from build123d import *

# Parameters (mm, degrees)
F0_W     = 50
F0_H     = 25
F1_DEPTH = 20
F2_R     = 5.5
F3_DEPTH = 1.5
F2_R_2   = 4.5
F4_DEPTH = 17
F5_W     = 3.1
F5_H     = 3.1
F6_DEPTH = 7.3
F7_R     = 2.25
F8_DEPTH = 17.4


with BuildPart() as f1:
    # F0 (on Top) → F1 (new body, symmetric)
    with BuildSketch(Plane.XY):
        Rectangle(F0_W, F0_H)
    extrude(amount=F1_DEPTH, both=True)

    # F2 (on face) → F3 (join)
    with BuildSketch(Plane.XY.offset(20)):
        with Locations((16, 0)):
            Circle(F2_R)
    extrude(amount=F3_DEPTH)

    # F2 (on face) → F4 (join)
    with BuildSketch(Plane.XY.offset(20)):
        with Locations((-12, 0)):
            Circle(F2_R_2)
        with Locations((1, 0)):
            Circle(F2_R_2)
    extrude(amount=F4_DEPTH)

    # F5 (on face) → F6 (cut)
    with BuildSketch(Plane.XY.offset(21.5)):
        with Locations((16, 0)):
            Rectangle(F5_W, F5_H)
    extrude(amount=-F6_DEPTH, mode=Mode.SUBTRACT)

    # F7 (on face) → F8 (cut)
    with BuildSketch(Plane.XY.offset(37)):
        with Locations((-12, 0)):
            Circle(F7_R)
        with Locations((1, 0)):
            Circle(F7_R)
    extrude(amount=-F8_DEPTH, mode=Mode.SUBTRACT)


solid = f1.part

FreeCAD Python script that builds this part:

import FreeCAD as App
import Part
import Sketcher
Q = App.Units.Quantity


def add_polygon(sketch, points):
    """Adds a closed chain of lines whose ends are joined by coincident constraints."""
    first, n = sketch.GeometryCount, len(points)
    for a, b in zip(points, points[1:] + points[:1]):
        sketch.addGeometry(Part.LineSegment(App.Vector(*a, 0), App.Vector(*b, 0)), False)
    for i in range(n):
        sketch.addConstraint(Sketcher.Constraint("Coincident", first + i, 2, first + (i + 1) % n, 1))

doc = App.newDocument("Part")
body = doc.addObject("PartDesign::Body", "Body")

sketch1 = body.newObject("Sketcher::SketchObject", "Sketch")
sketch1.AttachmentSupport = (doc.getObject("XY_Plane"), [""])
sketch1.MapMode = "FlatFace"
add_polygon(sketch1, [(-25, 12), (-25, -12), (25, -12), (25, 12)])
sketch1.addConstraint(Sketcher.Constraint("Vertical", 0))
sketch1.addConstraint(Sketcher.Constraint("Horizontal", 1))
sketch1.addConstraint(Sketcher.Constraint("Vertical", 2))
sketch1.addConstraint(Sketcher.Constraint("Horizontal", 3))
sketch1.addConstraint(Sketcher.Constraint("Symmetric", 0, 2, 2, 2, -1, 1))
sketch1.addConstraint(Sketcher.Constraint("DistanceX", 1, 1, 1, 2, Q("50 mm")))
sketch1.addConstraint(Sketcher.Constraint("DistanceY", 0, 2, 0, 1, Q("25 mm")))
pad1 = body.newObject("PartDesign::Pad", "Pad")
pad1.Profile = sketch1
pad1.Length = 40
pad1.Midplane = True

sketch2 = body.newObject("Sketcher::SketchObject", "Sketch001")
sketch2.AttachmentSupport = (doc.getObject("XY_Plane"), [""])
sketch2.MapMode = "FlatFace"
sketch2.AttachmentOffset = App.Placement(App.Vector(0, 0, 20), App.Rotation())
sketch2.addGeometry(Part.Circle(App.Vector(16, 0, 0), App.Vector(0, 0, 1), 6), False)
sketch2.addConstraint(Sketcher.Constraint("PointOnObject", 0, 3, -1))
sketch2.addConstraint(Sketcher.Constraint("Diameter", 0, Q("11 mm")))
sketch2.addConstraint(Sketcher.Constraint("DistanceX", -1, 1, 0, 3, Q("16 mm")))
pad2 = body.newObject("PartDesign::Pad", "Pad001")
pad2.Profile = sketch2
pad2.Length = 1.5

sketch3 = body.newObject("Sketcher::SketchObject", "Sketch002")
sketch3.AttachmentSupport = (doc.getObject("XY_Plane"), [""])
sketch3.MapMode = "FlatFace"
sketch3.AttachmentOffset = App.Placement(App.Vector(0, 0, 20), App.Rotation())
sketch3.addGeometry(Part.Circle(App.Vector(-12, 0, 0), App.Vector(0, 0, 1), 4.5), False)
sketch3.addGeometry(Part.Circle(App.Vector(1, 0, 0), App.Vector(0, 0, 1), 4.5), False)
sketch3.addConstraint(Sketcher.Constraint("Equal", 0, 1))
sketch3.addConstraint(Sketcher.Constraint("PointOnObject", 0, 3, -1))
sketch3.addConstraint(Sketcher.Constraint("PointOnObject", 1, 3, -1))
sketch3.addConstraint(Sketcher.Constraint("Diameter", 0, Q("9 mm")))
sketch3.addConstraint(Sketcher.Constraint("DistanceX", 0, 3, -1, 1, Q("12 mm")))
sketch3.addConstraint(Sketcher.Constraint("DistanceX", -1, 1, 1, 3, Q("1 mm")))
pad3 = body.newObject("PartDesign::Pad", "Pad002")
pad3.Profile = sketch3
pad3.Length = 17

sketch4 = body.newObject("Sketcher::SketchObject", "Sketch003")
sketch4.AttachmentSupport = (doc.getObject("XY_Plane"), [""])
sketch4.MapMode = "FlatFace"
sketch4.AttachmentOffset = App.Placement(App.Vector(0, 0, 21.5), App.Rotation())
add_polygon(sketch4, [(14.4, 1.6), (14.4, -1.6), (17.6, -1.6), (17.6, 1.6)])
sketch4.addConstraint(Sketcher.Constraint("Vertical", 0))
sketch4.addConstraint(Sketcher.Constraint("Horizontal", 1))
sketch4.addConstraint(Sketcher.Constraint("Vertical", 2))
sketch4.addConstraint(Sketcher.Constraint("Horizontal", 3))
sketch4.addConstraint(Sketcher.Constraint("Equal", 3, 0))
sketch4.addConstraint(Sketcher.Constraint("DistanceX", 1, 1, 1, 2, Q("3.1 mm")))
sketch4.addConstraint(Sketcher.Constraint("DistanceX", -1, 1, 0, 2, Q("14.45 mm")))
sketch4.addConstraint(Sketcher.Constraint("DistanceY", 0, 2, -1, 1, Q("1.55 mm")))
pocket1 = body.newObject("PartDesign::Pocket", "Pocket")
pocket1.Profile = sketch4
pocket1.Length = 7.3

sketch5 = body.newObject("Sketcher::SketchObject", "Sketch004")
sketch5.AttachmentSupport = (doc.getObject("XY_Plane"), [""])
sketch5.MapMode = "FlatFace"
sketch5.AttachmentOffset = App.Placement(App.Vector(0, 0, 37), App.Rotation())
sketch5.addGeometry(Part.Circle(App.Vector(-12, 0, 0), App.Vector(0, 0, 1), 2.2), False)
sketch5.addGeometry(Part.Circle(App.Vector(1, 0, 0), App.Vector(0, 0, 1), 2.2), False)
sketch5.addConstraint(Sketcher.Constraint("Equal", 0, 1))
sketch5.addConstraint(Sketcher.Constraint("PointOnObject", 0, 3, -1))
sketch5.addConstraint(Sketcher.Constraint("PointOnObject", 1, 3, -1))
sketch5.addConstraint(Sketcher.Constraint("Diameter", 0, Q("4.5 mm")))
sketch5.addConstraint(Sketcher.Constraint("DistanceX", 0, 3, -1, 1, Q("12 mm")))
sketch5.addConstraint(Sketcher.Constraint("DistanceX", -1, 1, 1, 3, Q("1 mm")))
pocket2 = body.newObject("PartDesign::Pocket", "Pocket001")
pocket2.Profile = sketch5
pocket2.Length = 17.4

doc.recompute()
